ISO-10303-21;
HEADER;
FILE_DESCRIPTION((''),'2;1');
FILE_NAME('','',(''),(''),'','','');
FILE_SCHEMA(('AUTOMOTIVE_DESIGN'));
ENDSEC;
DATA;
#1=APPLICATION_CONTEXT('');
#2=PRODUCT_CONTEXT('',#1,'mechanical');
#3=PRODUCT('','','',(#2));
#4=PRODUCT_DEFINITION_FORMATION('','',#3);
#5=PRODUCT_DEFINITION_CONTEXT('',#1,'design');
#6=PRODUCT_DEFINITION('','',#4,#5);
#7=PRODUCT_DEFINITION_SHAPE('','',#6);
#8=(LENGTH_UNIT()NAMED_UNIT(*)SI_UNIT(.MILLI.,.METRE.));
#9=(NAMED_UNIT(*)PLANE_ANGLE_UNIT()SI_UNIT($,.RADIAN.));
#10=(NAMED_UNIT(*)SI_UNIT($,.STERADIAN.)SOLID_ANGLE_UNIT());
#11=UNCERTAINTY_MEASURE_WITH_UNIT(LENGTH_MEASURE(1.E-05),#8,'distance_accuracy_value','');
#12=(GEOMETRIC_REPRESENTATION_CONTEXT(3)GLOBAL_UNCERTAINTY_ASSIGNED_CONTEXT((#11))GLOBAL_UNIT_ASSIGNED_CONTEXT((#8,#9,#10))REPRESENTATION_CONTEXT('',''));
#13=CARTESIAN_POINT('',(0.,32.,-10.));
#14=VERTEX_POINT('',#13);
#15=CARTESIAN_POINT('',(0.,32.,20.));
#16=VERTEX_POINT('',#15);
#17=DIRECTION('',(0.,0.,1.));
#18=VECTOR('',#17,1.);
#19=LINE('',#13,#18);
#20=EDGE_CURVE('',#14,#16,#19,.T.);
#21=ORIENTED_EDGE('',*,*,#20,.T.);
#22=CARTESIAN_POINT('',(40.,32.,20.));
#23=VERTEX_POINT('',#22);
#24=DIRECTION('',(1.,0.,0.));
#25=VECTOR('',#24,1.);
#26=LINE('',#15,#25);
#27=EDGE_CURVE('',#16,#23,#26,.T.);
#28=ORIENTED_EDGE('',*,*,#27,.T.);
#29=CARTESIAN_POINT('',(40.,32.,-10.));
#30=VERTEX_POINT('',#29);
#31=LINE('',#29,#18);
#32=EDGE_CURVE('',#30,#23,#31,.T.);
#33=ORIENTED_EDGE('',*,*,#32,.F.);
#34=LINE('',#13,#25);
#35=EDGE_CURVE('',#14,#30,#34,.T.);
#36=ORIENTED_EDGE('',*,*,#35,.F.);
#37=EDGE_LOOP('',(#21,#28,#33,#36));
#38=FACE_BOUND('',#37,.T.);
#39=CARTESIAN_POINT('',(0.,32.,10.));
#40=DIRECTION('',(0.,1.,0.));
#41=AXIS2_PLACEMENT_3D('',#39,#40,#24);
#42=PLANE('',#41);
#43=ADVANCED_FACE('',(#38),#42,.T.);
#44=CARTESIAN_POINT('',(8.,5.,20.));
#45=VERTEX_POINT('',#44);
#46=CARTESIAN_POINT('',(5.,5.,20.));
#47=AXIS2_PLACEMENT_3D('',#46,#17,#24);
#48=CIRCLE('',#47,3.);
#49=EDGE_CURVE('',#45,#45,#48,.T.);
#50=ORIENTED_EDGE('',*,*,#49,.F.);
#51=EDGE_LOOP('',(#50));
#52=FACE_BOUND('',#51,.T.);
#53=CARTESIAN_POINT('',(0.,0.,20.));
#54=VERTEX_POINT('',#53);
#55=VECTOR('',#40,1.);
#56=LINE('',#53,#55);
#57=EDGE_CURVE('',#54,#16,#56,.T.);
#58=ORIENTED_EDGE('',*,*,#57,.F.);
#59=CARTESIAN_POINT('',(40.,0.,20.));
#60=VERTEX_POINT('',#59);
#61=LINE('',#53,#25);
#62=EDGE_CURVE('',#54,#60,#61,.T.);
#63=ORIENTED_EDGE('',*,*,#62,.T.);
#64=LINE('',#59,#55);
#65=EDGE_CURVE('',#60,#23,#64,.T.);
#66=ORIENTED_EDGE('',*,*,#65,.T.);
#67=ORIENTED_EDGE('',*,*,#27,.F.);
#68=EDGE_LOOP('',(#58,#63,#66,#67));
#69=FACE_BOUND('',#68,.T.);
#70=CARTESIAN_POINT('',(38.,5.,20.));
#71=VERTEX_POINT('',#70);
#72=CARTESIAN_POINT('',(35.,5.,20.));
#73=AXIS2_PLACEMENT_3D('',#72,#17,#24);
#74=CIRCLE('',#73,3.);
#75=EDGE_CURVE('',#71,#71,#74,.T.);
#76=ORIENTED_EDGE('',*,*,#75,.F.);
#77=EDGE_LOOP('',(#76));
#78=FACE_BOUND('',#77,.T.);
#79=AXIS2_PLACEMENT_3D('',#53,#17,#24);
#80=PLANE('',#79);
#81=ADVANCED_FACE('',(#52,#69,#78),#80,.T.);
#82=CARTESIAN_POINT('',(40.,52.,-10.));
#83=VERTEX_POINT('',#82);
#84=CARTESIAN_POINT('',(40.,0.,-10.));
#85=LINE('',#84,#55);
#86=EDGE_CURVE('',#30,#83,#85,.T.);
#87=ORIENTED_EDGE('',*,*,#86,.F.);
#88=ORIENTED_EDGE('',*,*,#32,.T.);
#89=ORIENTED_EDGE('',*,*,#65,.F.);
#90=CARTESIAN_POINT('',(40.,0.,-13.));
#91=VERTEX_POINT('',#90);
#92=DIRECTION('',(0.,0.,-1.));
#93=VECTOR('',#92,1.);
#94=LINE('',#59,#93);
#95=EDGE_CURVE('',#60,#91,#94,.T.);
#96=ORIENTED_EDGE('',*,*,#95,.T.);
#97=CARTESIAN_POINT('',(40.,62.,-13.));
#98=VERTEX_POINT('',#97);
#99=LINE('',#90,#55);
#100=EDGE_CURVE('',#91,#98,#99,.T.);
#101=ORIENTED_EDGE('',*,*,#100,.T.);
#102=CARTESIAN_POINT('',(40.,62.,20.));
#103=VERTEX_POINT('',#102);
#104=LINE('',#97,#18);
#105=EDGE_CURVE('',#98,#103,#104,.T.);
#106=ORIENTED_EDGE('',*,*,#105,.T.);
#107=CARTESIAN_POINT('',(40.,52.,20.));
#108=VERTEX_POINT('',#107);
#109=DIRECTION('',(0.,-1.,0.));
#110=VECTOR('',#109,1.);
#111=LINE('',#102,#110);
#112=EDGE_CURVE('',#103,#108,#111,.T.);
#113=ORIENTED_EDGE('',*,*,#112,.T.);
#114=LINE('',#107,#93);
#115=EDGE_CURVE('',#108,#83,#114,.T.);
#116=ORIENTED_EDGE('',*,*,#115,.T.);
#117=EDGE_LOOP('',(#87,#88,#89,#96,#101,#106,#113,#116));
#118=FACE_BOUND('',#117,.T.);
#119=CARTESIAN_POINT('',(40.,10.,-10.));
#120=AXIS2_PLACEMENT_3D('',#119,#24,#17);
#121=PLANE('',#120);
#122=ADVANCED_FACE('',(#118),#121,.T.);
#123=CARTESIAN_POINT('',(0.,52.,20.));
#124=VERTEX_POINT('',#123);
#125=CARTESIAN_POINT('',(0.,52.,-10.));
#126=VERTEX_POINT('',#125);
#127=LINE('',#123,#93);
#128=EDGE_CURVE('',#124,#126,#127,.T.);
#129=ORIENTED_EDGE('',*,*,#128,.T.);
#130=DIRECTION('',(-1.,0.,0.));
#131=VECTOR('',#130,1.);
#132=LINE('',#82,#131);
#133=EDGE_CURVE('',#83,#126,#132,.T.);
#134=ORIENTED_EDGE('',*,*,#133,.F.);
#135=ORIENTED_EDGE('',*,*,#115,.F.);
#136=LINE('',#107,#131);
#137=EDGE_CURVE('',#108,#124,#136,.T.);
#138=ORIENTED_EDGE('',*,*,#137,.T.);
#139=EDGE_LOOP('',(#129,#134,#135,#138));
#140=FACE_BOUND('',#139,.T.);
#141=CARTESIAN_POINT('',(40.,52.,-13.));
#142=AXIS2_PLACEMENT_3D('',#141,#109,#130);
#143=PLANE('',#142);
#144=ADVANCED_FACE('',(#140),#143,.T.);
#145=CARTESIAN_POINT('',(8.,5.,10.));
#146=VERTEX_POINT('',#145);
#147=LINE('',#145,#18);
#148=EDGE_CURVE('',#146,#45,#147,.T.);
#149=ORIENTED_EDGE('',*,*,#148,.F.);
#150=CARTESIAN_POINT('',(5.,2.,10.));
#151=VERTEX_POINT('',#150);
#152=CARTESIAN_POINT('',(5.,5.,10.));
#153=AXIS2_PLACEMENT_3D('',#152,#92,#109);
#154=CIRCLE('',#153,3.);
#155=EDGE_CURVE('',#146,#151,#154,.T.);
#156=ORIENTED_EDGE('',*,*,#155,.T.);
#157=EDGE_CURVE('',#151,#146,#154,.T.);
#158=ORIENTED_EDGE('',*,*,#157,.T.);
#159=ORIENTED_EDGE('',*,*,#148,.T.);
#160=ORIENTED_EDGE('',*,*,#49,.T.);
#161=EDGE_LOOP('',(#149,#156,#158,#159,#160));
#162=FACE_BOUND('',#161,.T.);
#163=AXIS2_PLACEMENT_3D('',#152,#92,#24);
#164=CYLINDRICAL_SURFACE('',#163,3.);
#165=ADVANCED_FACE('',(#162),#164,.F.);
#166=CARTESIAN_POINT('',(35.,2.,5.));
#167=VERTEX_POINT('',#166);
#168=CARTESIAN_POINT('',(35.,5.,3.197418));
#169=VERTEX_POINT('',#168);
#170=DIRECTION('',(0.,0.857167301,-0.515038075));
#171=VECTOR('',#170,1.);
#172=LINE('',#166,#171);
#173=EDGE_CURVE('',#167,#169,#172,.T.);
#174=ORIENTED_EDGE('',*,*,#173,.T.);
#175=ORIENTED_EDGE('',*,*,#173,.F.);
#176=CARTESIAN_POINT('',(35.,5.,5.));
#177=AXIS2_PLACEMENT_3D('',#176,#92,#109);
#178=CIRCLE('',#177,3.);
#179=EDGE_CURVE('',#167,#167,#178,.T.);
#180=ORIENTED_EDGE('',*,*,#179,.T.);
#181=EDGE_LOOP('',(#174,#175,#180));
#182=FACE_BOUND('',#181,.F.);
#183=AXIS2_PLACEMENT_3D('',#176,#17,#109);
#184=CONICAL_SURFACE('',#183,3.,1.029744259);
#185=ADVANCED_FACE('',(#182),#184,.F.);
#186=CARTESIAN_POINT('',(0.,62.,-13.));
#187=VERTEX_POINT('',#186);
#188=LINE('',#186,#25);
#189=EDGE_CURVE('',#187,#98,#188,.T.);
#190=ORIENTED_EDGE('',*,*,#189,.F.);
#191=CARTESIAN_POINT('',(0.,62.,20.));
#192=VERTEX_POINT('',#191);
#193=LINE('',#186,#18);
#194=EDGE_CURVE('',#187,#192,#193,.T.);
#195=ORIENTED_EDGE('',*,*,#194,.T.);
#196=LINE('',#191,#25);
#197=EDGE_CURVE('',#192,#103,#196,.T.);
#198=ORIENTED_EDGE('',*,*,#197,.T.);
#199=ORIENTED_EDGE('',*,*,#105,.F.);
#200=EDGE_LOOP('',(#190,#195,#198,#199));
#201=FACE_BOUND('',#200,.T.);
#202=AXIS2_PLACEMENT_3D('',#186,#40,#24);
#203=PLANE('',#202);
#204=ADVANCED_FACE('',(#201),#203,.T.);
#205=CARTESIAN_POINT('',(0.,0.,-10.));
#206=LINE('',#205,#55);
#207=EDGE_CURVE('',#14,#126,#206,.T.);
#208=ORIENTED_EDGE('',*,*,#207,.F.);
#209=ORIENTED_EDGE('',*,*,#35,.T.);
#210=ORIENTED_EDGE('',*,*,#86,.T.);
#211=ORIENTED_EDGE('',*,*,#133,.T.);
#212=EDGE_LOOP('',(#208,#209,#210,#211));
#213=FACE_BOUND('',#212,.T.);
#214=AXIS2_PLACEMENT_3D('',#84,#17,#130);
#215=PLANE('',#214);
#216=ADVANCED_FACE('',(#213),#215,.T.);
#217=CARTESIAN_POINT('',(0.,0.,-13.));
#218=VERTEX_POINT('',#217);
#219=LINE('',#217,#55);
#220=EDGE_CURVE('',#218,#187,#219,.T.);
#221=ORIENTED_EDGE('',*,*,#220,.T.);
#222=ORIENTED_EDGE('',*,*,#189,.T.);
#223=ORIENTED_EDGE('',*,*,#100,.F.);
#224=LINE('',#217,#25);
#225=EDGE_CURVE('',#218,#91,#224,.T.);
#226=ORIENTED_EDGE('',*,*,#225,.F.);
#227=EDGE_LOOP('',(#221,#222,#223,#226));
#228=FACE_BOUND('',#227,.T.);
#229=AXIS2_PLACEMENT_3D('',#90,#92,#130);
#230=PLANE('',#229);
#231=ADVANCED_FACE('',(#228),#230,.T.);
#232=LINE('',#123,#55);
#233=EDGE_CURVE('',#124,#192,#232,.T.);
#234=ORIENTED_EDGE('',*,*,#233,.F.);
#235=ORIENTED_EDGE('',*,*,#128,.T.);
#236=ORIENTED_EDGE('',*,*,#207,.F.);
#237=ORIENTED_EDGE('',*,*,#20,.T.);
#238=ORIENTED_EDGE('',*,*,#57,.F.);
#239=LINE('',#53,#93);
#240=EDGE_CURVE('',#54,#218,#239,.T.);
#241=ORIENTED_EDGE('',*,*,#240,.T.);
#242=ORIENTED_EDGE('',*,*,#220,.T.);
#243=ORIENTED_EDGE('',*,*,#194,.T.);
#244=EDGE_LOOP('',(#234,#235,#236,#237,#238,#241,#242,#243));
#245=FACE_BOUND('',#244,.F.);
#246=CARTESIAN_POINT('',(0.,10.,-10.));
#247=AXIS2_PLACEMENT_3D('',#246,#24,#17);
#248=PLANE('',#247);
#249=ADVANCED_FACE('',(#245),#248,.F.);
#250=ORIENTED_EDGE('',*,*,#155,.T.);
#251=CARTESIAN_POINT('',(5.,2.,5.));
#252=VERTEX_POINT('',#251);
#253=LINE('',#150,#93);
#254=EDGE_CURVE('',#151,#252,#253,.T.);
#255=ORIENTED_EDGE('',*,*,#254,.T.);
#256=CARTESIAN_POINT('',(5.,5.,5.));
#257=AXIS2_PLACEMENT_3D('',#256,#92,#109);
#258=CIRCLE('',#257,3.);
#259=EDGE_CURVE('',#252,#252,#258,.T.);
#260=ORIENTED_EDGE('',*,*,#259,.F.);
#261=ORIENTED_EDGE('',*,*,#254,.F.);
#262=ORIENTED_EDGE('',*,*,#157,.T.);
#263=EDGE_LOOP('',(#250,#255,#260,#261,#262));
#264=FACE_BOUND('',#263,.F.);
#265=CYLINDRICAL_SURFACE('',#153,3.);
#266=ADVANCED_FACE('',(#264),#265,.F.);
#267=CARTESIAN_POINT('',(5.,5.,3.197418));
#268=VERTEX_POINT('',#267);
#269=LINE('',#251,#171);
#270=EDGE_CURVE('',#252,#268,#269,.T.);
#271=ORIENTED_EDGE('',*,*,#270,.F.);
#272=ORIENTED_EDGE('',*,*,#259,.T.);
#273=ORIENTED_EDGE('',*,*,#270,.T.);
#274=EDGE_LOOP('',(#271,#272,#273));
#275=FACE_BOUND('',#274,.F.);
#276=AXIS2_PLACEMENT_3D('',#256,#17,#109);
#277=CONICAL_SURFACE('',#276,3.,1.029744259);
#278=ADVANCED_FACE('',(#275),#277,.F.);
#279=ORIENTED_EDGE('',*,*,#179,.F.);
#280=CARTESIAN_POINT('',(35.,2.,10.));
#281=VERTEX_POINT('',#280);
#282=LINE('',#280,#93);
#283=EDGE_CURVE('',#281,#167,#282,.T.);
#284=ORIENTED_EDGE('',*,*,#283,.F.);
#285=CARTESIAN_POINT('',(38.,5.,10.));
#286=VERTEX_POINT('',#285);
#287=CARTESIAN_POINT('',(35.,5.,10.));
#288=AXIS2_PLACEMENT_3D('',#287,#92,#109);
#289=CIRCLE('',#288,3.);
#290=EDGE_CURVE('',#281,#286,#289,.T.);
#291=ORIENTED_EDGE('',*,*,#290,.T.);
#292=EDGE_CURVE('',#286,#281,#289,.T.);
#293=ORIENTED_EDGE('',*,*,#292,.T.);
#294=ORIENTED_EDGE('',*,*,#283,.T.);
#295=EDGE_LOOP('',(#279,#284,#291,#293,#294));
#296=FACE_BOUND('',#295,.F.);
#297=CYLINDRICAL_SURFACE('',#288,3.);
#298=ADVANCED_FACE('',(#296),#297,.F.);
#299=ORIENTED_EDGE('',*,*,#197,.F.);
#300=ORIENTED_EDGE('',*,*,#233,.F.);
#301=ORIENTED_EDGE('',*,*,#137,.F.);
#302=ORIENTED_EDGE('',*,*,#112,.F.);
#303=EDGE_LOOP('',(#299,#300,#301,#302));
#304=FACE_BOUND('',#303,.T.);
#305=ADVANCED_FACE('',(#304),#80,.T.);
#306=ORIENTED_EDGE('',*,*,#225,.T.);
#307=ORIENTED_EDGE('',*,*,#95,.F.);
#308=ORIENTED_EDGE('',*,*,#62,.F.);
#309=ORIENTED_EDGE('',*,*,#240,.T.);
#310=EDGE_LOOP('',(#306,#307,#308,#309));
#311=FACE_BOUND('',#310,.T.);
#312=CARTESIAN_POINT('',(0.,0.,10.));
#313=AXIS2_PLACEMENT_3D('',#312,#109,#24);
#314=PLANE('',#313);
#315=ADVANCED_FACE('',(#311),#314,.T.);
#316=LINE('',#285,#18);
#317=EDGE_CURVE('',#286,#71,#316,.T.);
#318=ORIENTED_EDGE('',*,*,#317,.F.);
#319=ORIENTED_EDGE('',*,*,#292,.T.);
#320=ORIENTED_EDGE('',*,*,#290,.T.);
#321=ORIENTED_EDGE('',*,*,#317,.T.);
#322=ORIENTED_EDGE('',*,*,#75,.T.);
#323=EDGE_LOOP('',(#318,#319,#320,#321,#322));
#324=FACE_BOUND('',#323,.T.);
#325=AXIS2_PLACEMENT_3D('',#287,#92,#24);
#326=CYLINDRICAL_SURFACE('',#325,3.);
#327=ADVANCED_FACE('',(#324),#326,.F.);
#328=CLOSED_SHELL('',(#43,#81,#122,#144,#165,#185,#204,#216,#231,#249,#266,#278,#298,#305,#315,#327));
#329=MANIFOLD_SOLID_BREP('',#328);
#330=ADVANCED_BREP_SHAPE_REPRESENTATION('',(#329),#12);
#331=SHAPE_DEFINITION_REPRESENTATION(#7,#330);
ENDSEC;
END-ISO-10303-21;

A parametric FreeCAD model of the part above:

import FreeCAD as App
import Part
import Sketcher

V = App.Vector

doc = App.newDocument("Part")
body = doc.addObject("PartDesign::Body", "Body")

sketch1 = body.newObject("Sketcher::SketchObject", "Sketch")
sketch1.AttachmentSupport = (doc.getObject("XY_Plane"), [""])
sketch1.MapMode = "FlatFace"
sketch1.addGeometry(Part.LineSegment(V(0, 10, 0), V(0, 0, 0)), False)
sketch1.addGeometry(Part.LineSegment(V(0, 0, 0), V(40, 0, 0)), False)
sketch1.addGeometry(Part.LineSegment(V(40, 0, 0), V(40, 10, 0)), False)
sketch1.addGeometry(Part.LineSegment(V(40, 10, 0), V(0, 10, 0)), False)
sketch1.addConstraint(Sketcher.Constraint("Coincident", 0, 2, 1, 1))
sketch1.addConstraint(Sketcher.Constraint("Coincident", 1, 2, 2, 1))
sketch1.addConstraint(Sketcher.Constraint("Coincident", 2, 2, 3, 1))
sketch1.addConstraint(Sketcher.Constraint("Coincident", 3, 2, 0, 1))
sketch1.addConstraint(Sketcher.Constraint("Vertical", 0))
sketch1.addConstraint(Sketcher.Constraint("Horizontal", 1))
sketch1.addConstraint(Sketcher.Constraint("Vertical", 2))
sketch1.addConstraint(Sketcher.Constraint("Horizontal", 3))
sketch1.addConstraint(Sketcher.Constraint("Coincident", 0, 2, -1, 1))
sketch1.addConstraint(Sketcher.Constraint("DistanceX", 1, 1, 1, 2, 40.0))
sketch1.addConstraint(Sketcher.Constraint("DistanceY", 0, 2, 0, 1, 10.0))
pad1 = body.newObject("PartDesign::Pad", "Pad")
pad1.Profile = sketch1
pad1.Length = 10

sketch2 = body.newObject("Sketcher::SketchObject", "Sketch001")
sketch2.AttachmentSupport = (doc.getObject("XY_Plane"), [""])
sketch2.MapMode = "FlatFace"
sketch2.AttachmentOffset = App.Placement(V(0, 0, 10), App.Rotation())
sketch2.addGeometry(Part.Circle(V(5, 5, 0), V(0, 0, 1), 3), False)
sketch2.addGeometry(Part.Circle(V(35, 5, 0), V(0, 0, 1), 3), False)
sketch2.addConstraint(Sketcher.Constraint("Equal", 0, 1))
sketch2.addConstraint(Sketcher.Constraint("Horizontal", 0, 3, 1, 3))
sketch2.addConstraint(Sketcher.Constraint("Diameter", 0, 6.0))
sketch2.addConstraint(Sketcher.Constraint("DistanceX", -1, 1, 0, 3, 5.0))
sketch2.addConstraint(Sketcher.Constraint("DistanceY", -1, 1, 0, 3, 5.0))
sketch2.addConstraint(Sketcher.Constraint("DistanceX", -1, 1, 1, 3, 35.0))
doc.recompute()
hole = body.newObject("PartDesign::Hole", "Hole")
hole.Profile = sketch2
hole.ThreadType = "None"
hole.Diameter = 6
hole.DepthType = "Dimension"
hole.Depth = 5
hole.DrillPoint = "Angled"
hole.DrillPointAngle = 118

sketch3 = body.newObject("Sketcher::SketchObject", "Sketch002")
sketch3.AttachmentSupport = (doc.getObject("XY_Plane"), [""])
sketch3.MapMode = "FlatFace"
sketch3.addGeometry(Part.LineSegment(V(40, 0, 0), V(0, 0, 0)), False)
sketch3.addGeometry(Part.LineSegment(V(0, 0, 0), V(0, 10, 0)), False)
sketch3.addGeometry(Part.LineSegment(V(0, 10, 0), V(40, 10, 0)), False)
sketch3.addGeometry(Part.LineSegment(V(40, 10, 0), V(40, 0, 0)), False)
sketch3.addConstraint(Sketcher.Constraint("Coincident", 0, 2, 1, 1))
sketch3.addConstraint(Sketcher.Constraint("Coincident", 1, 2, 2, 1))
sketch3.addConstraint(Sketcher.Constraint("Coincident", 2, 2, 3, 1))
sketch3.addConstraint(Sketcher.Constraint("Coincident", 3, 2, 0, 1))
sketch3.addConstraint(Sketcher.Constraint("Horizontal", 0))
sketch3.addConstraint(Sketcher.Constraint("Vertical", 1))
sketch3.addConstraint(Sketcher.Constraint("Horizontal", 2))
sketch3.addConstraint(Sketcher.Constraint("Vertical", 3))
sketch3.addConstraint(Sketcher.Constraint("Coincident", 0, 2, -1, 1))
sketch3.addConstraint(Sketcher.Constraint("DistanceX", 0, 2, 0, 1, 40.0))
sketch3.addConstraint(Sketcher.Constraint("DistanceY", 1, 1, 1, 2, 10.0))
pad2 = body.newObject("PartDesign::Pad", "Pad001")
pad2.Profile = sketch3
pad2.Length = 10
pad2.Reversed = True

sketch4 = body.newObject("Sketcher::SketchObject", "Sketch003")
sketch4.AttachmentSupport = (doc.getObject("XZ_Plane"), [""])
sketch4.MapMode = "FlatFace"
sketch4.addGeometry(Part.LineSegment(V(40, -13, 0), V(40, -10, 0)), False)
sketch4.addGeometry(Part.LineSegment(V(40, -10, 0), V(0, -10, 0)), False)
sketch4.addGeometry(Part.LineSegment(V(0, -10, 0), V(0, -13, 0)), False)
sketch4.addGeometry(Part.LineSegment(V(0, -13, 0), V(40, -13, 0)), False)
sketch4.addConstraint(Sketcher.Constraint("Coincident", 0, 2, 1, 1))
sketch4.addConstraint(Sketcher.Constraint("Coincident", 1, 2, 2, 1))
sketch4.addConstraint(Sketcher.Constraint("Coincident", 2, 2, 3, 1))
sketch4.addConstraint(Sketcher.Constraint("Coincident", 3, 2, 0, 1))
sketch4.addConstraint(Sketcher.Constraint("Vertical", 0))
sketch4.addConstraint(Sketcher.Constraint("Horizontal", 1))
sketch4.addConstraint(Sketcher.Constraint("Vertical", 2))
sketch4.addConstraint(Sketcher.Constraint("Horizontal", 3))
sketch4.addConstraint(Sketcher.Constraint("PointOnObject", 1, 2, -2))
sketch4.addConstraint(Sketcher.Constraint("DistanceY", 0, 1, 0, 2, 3.0))
sketch4.addConstraint(Sketcher.Constraint("DistanceX", 1, 2, 1, 1, 40.0))
sketch4.addConstraint(Sketcher.Constraint("DistanceY", 0, 2, -1, 1, 10.0))
pad3 = body.newObject("PartDesign::Pad", "Pad002")
pad3.Profile = sketch4
pad3.Length = 52
pad3.Reversed = True

sketch5 = body.newObject("Sketcher::SketchObject", "Sketch004")
sketch5.AttachmentSupport = (doc.getObject("XY_Plane"), [""])
sketch5.MapMode = "FlatFace"
sketch5.AttachmentOffset = App.Placement(V(0, 0, -13), App.Rotation())
sketch5.addGeometry(Part.LineSegment(V(40, 62, 0), V(40, 52, 0)), False)
sketch5.addGeometry(Part.LineSegment(V(40, 52, 0), V(0, 52, 0)), False)
sketch5.addGeometry(Part.LineSegment(V(0, 52, 0), V(0, 62, 0)), False)
sketch5.addGeometry(Part.LineSegment(V(0, 62, 0), V(40, 62, 0)), False)
sketch5.addConstraint(Sketcher.Constraint("Coincident", 0, 2, 1, 1))
sketch5.addConstraint(Sketcher.Constraint("Coincident", 1, 2, 2, 1))
sketch5.addConstraint(Sketcher.Constraint("Coincident", 2, 2, 3, 1))
sketch5.addConstraint(Sketcher.Constraint("Coincident", 3, 2, 0, 1))
sketch5.addConstraint(Sketcher.Constraint("Vertical", 0))
sketch5.addConstraint(Sketcher.Constraint("Horizontal", 1))
sketch5.addConstraint(Sketcher.Constraint("Vertical", 2))
sketch5.addConstraint(Sketcher.Constraint("Horizontal", 3))
sketch5.addConstraint(Sketcher.Constraint("PointOnObject", 1, 2, -2))
sketch5.addConstraint(Sketcher.Constraint("DistanceY", 0, 2, 0, 1, 10.0))
sketch5.addConstraint(Sketcher.Constraint("DistanceX", 1, 2, 1, 1, 40.0))
sketch5.addConstraint(Sketcher.Constraint("DistanceY", -1, 1, 0, 2, 52.0))
pad4 = body.newObject("PartDesign::Pad", "Pad003")
pad4.Profile = sketch5
pad4.Length = 23

sketch6 = body.newObject("Sketcher::SketchObject", "Sketch005")
sketch6.AttachmentSupport = (doc.getObject("XZ_Plane"), [""])
sketch6.MapMode = "FlatFace"
sketch6.AttachmentOffset = App.Placement(V(0, 0, -10), App.Rotation())
sketch6.addGeometry(Part.LineSegment(V(40, -10, 0), V(0, -10, 0)), False)
sketch6.addGeometry(Part.LineSegment(V(0, -10, 0), V(0, 10, 0)), False)
sketch6.addGeometry(Part.LineSegment(V(0, 10, 0), V(40, 10, 0)), False)
sketch6.addGeometry(Part.LineSegment(V(40, 10, 0), V(40, -10, 0)), False)
sketch6.addConstraint(Sketcher.Constraint("Coincident", 0, 2, 1, 1))
sketch6.addConstraint(Sketcher.Constraint("Coincident", 1, 2, 2, 1))
sketch6.addConstraint(Sketcher.Constraint("Coincident", 2, 2, 3, 1))
sketch6.addConstraint(Sketcher.Constraint("Coincident", 3, 2, 0, 1))
sketch6.addConstraint(Sketcher.Constraint("Horizontal", 0))
sketch6.addConstraint(Sketcher.Constraint("Vertical", 1))
sketch6.addConstraint(Sketcher.Constraint("Horizontal", 2))
sketch6.addConstraint(Sketcher.Constraint("Vertical", 3))
sketch6.addConstraint(Sketcher.Constraint("Symmetric", 0, 2, 1, 2, -1, 1))
sketch6.addConstraint(Sketcher.Constraint("DistanceX", 0, 2, 0, 1, 40.0))
sketch6.addConstraint(Sketcher.Constraint("DistanceY", 1, 1, 1, 2, 20.0))
pad5 = body.newObject("PartDesign::Pad", "Pad004")
pad5.Profile = sketch6
pad5.Length = 22
pad5.Reversed = True

sketch7 = body.newObject("Sketcher::SketchObject", "Sketch006")
sketch7.AttachmentSupport = (doc.getObject("XY_Plane"), [""])
sketch7.MapMode = "FlatFace"
sketch7.AttachmentOffset = App.Placement(V(0, 0, 10), App.Rotation())
sketch7.addGeometry(Part.LineSegment(V(0, 32, 0), V(0, 0, 0)), False)
sketch7.addGeometry(Part.LineSegment(V(0, 0, 0), V(40, 0, 0)), False)
sketch7.addGeometry(Part.LineSegment(V(40, 0, 0), V(40, 32, 0)), False)
sketch7.addGeometry(Part.LineSegment(V(40, 32, 0), V(0, 32, 0)), False)
sketch7.addGeometry(Part.Circle(V(5, 5, 0), V(0, 0, 1), 3), False)
sketch7.addGeometry(Part.Circle(V(35, 5, 0), V(0, 0, 1), 3), False)
sketch7.addGeometry(Part.LineSegment(V(0, 62, 0), V(0, 52, 0)), False)
sketch7.addGeometry(Part.LineSegment(V(0, 52, 0), V(40, 52, 0)), False)
sketch7.addGeometry(Part.LineSegment(V(40, 52, 0), V(40, 62, 0)), False)
sketch7.addGeometry(Part.LineSegment(V(40, 62, 0), V(0, 62, 0)), False)
sketch7.addConstraint(Sketcher.Constraint("Coincident", 0, 2, 1, 1))
sketch7.addConstraint(Sketcher.Constraint("Coincident", 1, 2, 2, 1))
sketch7.addConstraint(Sketcher.Constraint("Coincident", 2, 2, 3, 1))
sketch7.addConstraint(Sketcher.Constraint("Coincident", 3, 2, 0, 1))
sketch7.addConstraint(Sketcher.Constraint("Coincident", 6, 2, 7, 1))
sketch7.addConstraint(Sketcher.Constraint("Coincident", 7, 2, 8, 1))
sketch7.addConstraint(Sketcher.Constraint("Coincident", 8, 2, 9, 1))
sketch7.addConstraint(Sketcher.Constraint("Coincident", 9, 2, 6, 1))
sketch7.addConstraint(Sketcher.Constraint("Vertical", 0))
sketch7.addConstraint(Sketcher.Constraint("Horizontal", 1))
sketch7.addConstraint(Sketcher.Constraint("Vertical", 2))
sketch7.addConstraint(Sketcher.Constraint("Horizontal", 3))
sketch7.addConstraint(Sketcher.Constraint("Vertical", 6))
sketch7.addConstraint(Sketcher.Constraint("Horizontal", 7))
sketch7.addConstraint(Sketcher.Constraint("Vertical", 8))
sketch7.addConstraint(Sketcher.Constraint("Horizontal", 9))
sketch7.addConstraint(Sketcher.Constraint("Coincident", 0, 2, -1, 1))
sketch7.addConstraint(Sketcher.Constraint("Equal", 4, 5))
sketch7.addConstraint(Sketcher.Constraint("PointOnObject", 6, 2, -2))
sketch7.addConstraint(Sketcher.Constraint("Horizontal", 4, 3, 5, 3))
sketch7.addConstraint(Sketcher.Constraint("Vertical", 2, 2, 7, 2))
sketch7.addConstraint(Sketcher.Constraint("Diameter", 4, 6.0))
sketch7.addConstraint(Sketcher.Constraint("DistanceX", 1, 1, 1, 2, 40.0))
sketch7.addConstraint(Sketcher.Constraint("DistanceY", 0, 2, 0, 1, 32.0))
sketch7.addConstraint(Sketcher.Constraint("DistanceY", 6, 2, 6, 1, 10.0))
sketch7.addConstraint(Sketcher.Constraint("DistanceX", -1, 1, 4, 3, 5.0))
sketch7.addConstraint(Sketcher.Constraint("DistanceY", -1, 1, 4, 3, 5.0))
sketch7.addConstraint(Sketcher.Constraint("DistanceX", -1, 1, 5, 3, 35.0))
sketch7.addConstraint(Sketcher.Constraint("DistanceY", -1, 1, 6, 2, 52.0))
pad6 = body.newObject("PartDesign::Pad", "Pad005")
pad6.Profile = sketch7
pad6.Length = 10

doc.recompute()
